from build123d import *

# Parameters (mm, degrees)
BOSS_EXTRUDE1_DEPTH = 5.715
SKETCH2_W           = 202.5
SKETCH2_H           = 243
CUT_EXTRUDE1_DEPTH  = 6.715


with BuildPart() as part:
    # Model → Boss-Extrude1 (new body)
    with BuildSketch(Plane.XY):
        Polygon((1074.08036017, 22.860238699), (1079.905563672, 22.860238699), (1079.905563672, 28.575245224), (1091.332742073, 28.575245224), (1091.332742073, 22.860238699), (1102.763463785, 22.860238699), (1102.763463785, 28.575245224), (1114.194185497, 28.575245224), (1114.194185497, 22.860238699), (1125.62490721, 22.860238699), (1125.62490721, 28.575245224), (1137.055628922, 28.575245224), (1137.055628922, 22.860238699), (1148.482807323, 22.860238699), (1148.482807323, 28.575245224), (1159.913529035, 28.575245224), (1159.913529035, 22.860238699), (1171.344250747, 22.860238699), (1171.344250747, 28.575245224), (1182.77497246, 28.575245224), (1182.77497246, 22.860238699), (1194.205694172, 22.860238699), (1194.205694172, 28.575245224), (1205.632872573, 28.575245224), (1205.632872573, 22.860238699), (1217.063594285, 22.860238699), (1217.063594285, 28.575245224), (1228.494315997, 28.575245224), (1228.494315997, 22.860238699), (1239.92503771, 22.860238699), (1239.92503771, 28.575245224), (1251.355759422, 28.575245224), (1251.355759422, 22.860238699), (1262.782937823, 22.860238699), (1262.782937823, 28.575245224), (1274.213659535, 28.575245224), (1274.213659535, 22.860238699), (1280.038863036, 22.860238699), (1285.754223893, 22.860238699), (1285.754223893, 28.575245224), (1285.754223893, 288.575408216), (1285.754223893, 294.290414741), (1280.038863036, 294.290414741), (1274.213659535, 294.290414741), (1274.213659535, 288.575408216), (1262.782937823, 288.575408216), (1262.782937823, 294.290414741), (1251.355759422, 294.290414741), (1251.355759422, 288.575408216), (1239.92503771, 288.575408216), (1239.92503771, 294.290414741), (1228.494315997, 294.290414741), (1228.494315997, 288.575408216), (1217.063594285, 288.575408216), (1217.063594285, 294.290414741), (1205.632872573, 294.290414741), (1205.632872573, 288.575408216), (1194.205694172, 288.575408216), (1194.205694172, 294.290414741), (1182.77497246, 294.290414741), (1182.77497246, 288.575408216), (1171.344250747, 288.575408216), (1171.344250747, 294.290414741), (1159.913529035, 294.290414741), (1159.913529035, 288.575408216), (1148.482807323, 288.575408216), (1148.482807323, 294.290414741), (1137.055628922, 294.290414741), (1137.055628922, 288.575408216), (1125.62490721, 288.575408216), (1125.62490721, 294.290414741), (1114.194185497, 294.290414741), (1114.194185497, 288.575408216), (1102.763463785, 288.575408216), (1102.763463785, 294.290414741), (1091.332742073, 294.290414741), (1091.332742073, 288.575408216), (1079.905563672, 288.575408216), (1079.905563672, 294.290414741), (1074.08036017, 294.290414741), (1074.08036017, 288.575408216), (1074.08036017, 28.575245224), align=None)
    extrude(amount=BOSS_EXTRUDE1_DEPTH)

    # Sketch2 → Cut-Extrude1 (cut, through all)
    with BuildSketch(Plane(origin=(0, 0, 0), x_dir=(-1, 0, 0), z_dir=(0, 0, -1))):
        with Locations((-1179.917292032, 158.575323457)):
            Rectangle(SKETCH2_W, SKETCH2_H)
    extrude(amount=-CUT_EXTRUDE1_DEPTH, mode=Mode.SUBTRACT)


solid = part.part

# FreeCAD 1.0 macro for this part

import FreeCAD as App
import Part
import Sketcher
from FreeCAD import Vector

doc = App.newDocument("Part")
body = doc.addObject("PartDesign::Body", "Body")

sketch1 = body.newObject("Sketcher::SketchObject", "Sketch")
sketch1.AttachmentSupport = (doc.getObject("XY_Plane"), [""])
sketch1.MapMode = "FlatFace"
sketch1.addGeometry(Part.LineSegment(Vector(1074.08036, 22.860239, 0), Vector(1079.905564, 22.860239, 0)), False)
sketch1.addGeometry(Part.LineSegment(Vector(1079.905564, 22.860239, 0), Vector(1079.905564, 28.575245, 0)), False)
sketch1.addGeometry(Part.LineSegment(Vector(1079.905564, 28.575245, 0), Vector(1091.332742, 28.575245, 0)), False)
sketch1.addGeometry(Part.LineSegment(Vector(1091.332742, 28.575245, 0), Vector(1091.332742, 22.860239, 0)), False)
sketch1.addGeometry(Part.LineSegment(Vector(1091.332742, 22.860239, 0), Vector(1102.763464, 22.860239, 0)), False)
sketch1.addGeometry(Part.LineSegment(Vector(1102.763464, 22.860239, 0), Vector(1102.763464, 28.575245, 0)), False)
sketch1.addGeometry(Part.LineSegment(Vector(1102.763464, 28.575245, 0), Vector(1114.194185, 28.575245, 0)), False)
sketch1.addGeometry(Part.LineSegment(Vector(1114.194185, 28.575245, 0), Vector(1114.194185, 22.860239, 0)), False)
sketch1.addGeometry(Part.LineSegment(Vector(1114.194185, 22.860239, 0), Vector(1125.624907, 22.860239, 0)), False)
sketch1.addGeometry(Part.LineSegment(Vector(1125.624907, 22.860239, 0), Vector(1125.624907, 28.575245, 0)), False)
sketch1.addGeometry(Part.LineSegment(Vector(1125.624907, 28.575245, 0), Vector(1137.055629, 28.575245, 0)), False)
sketch1.addGeometry(Part.LineSegment(Vector(1137.055629, 28.575245, 0), Vector(1137.055629, 22.860239, 0)), False)
sketch1.addGeometry(Part.LineSegment(Vector(1137.055629, 22.860239, 0), Vector(1148.482807, 22.860239, 0)), False)
sketch1.addGeometry(Part.LineSegment(Vector(1148.482807, 22.860239, 0), Vector(1148.482807, 28.575245, 0)), False)
sketch1.addGeometry(Part.LineSegment(Vector(1148.482807, 28.575245, 0), Vector(1159.913529, 28.575245, 0)), False)
sketch1.addGeometry(Part.LineSegment(Vector(1159.913529, 28.575245, 0), Vector(1159.913529, 22.860239, 0)), False)
sketch1.addGeometry(Part.LineSegment(Vector(1159.913529, 22.860239, 0), Vector(1171.344251, 22.860239, 0)), False)
sketch1.addGeometry(Part.LineSegment(Vector(1171.344251, 22.860239, 0), Vector(1171.344251, 28.575245, 0)), False)
sketch1.addGeometry(Part.LineSegment(Vector(1171.344251, 28.575245, 0), Vector(1182.774972, 28.575245, 0)), False)
sketch1.addGeometry(Part.LineSegment(Vector(1182.774972, 28.575245, 0), Vector(1182.774972, 22.860239, 0)), False)
sketch1.addGeometry(Part.LineSegment(Vector(1182.774972, 22.860239, 0), Vector(1194.205694, 22.860239, 0)), False)
sketch1.addGeometry(Part.LineSegment(Vector(1194.205694, 22.860239, 0), Vector(1194.205694, 28.575245, 0)), False)
sketch1.addGeometry(Part.LineSegment(Vector(1194.205694, 28.575245, 0), Vector(1205.632873, 28.575245, 0)), False)
sketch1.addGeometry(Part.LineSegment(Vector(1205.632873, 28.575245, 0), Vector(1205.632873, 22.860239, 0)), False)
sketch1.addGeometry(Part.LineSegment(Vector(1205.632873, 22.860239, 0), Vector(1217.063594, 22.860239, 0)), False)
sketch1.addGeometry(Part.LineSegment(Vector(1217.063594, 22.860239, 0), Vector(1217.063594, 28.575245, 0)), False)
sketch1.addGeometry(Part.LineSegment(Vector(1217.063594, 28.575245, 0), Vector(1228.494316, 28.575245, 0)), False)
sketch1.addGeometry(Part.LineSegment(Vector(1228.494316, 28.575245, 0), Vector(1228.494316, 22.860239, 0)), False)
sketch1.addGeometry(Part.LineSegment(Vector(1228.494316, 22.860239, 0), Vector(1239.925038, 22.860239, 0)), False)
sketch1.addGeometry(Part.LineSegment(Vector(1239.925038, 22.860239, 0), Vector(1239.925038, 28.575245, 0)), False)
sketch1.addGeometry(Part.LineSegment(Vector(1239.925038, 28.575245, 0), Vector(1251.355759, 28.575245, 0)), False)
sketch1.addGeometry(Part.LineSegment(Vector(1251.355759, 28.575245, 0), Vector(1251.355759, 22.860239, 0)), False)
sketch1.addGeometry(Part.LineSegment(Vector(1251.355759, 22.860239, 0), Vector(1262.782938, 22.860239, 0)), False)
sketch1.addGeometry(Part.LineSegment(Vector(1262.782938, 22.860239, 0), Vector(1262.782938, 28.575245, 0)), False)
sketch1.addGeometry(Part.LineSegment(Vector(1262.782938, 28.575245, 0), Vector(1274.21366, 28.575245, 0)), False)
sketch1.addGeometry(Part.LineSegment(Vector(1274.21366, 28.575245, 0), Vector(1274.21366, 22.860239, 0)), False)
sketch1.addGeometry(Part.LineSegment(Vector(1274.21366, 22.860239, 0), Vector(1285.754224, 22.860239, 0)), False)
sketch1.addGeometry(Part.LineSegment(Vector(1285.754224, 22.860239, 0), Vector(1285.754224, 294.290415, 0)), False)
sketch1.addGeometry(Part.LineSegment(Vector(1285.754224, 294.290415, 0), Vector(1274.21366, 294.290415, 0)), False)
sketch1.addGeometry(Part.LineSegment(Vector(1274.21366, 294.290415, 0), Vector(1274.21366, 288.575408, 0)), False)
sketch1.addGeometry(Part.LineSegment(Vector(1274.21366, 288.575408, 0), Vector(1262.782938, 288.575408, 0)), False)
sketch1.addGeometry(Part.LineSegment(Vector(1262.782938, 288.575408, 0), Vector(1262.782938, 294.290415, 0)), False)
sketch1.addGeometry(Part.LineSegment(Vector(1262.782938, 294.290415, 0), Vector(1251.355759, 294.290415, 0)), False)
sketch1.addGeometry(Part.LineSegment(Vector(1251.355759, 294.290415, 0), Vector(1251.355759, 288.575408, 0)), False)
sketch1.addGeometry(Part.LineSegment(Vector(1251.355759, 288.575408, 0), Vector(1239.925038, 288.575408, 0)), False)
sketch1.addGeometry(Part.LineSegment(Vector(1239.925038, 288.575408, 0), Vector(1239.925038, 294.290415, 0)), False)
sketch1.addGeometry(Part.LineSegment(Vector(1239.925038, 294.290415, 0), Vector(1228.494316, 294.290415, 0)), False)
sketch1.addGeometry(Part.LineSegment(Vector(1228.494316, 294.290415, 0), Vector(1228.494316, 288.575408, 0)), False)
sketch1.addGeometry(Part.LineSegment(Vector(1228.494316, 288.575408, 0), Vector(1217.063594, 288.575408, 0)), False)
sketch1.addGeometry(Part.LineSegment(Vector(1217.063594, 288.575408, 0), Vector(1217.063594, 294.290415, 0)), False)
sketch1.addGeometry(Part.LineSegment(Vector(1217.063594, 294.290415, 0), Vector(1205.632873, 294.290415, 0)), False)
sketch1.addGeometry(Part.LineSegment(Vector(1205.632873, 294.290415, 0), Vector(1205.632873, 288.575408, 0)), False)
sketch1.addGeometry(Part.LineSegment(Vector(1205.632873, 288.575408, 0), Vector(1194.205694, 288.575408, 0)), False)
sketch1.addGeometry(Part.LineSegment(Vector(1194.205694, 288.575408, 0), Vector(1194.205694, 294.290415, 0)), False)
sketch1.addGeometry(Part.LineSegment(Vector(1194.205694, 294.290415, 0), Vector(1182.774972, 294.290415, 0)), False)
sketch1.addGeometry(Part.LineSegment(Vector(1182.774972, 294.290415, 0), Vector(1182.774972, 288.575408, 0)), False)
sketch1.addGeometry(Part.LineSegment(Vector(1182.774972, 288.575408, 0), Vector(1171.344251, 288.575408, 0)), False)
sketch1.addGeometry(Part.LineSegment(Vector(1171.344251, 288.575408, 0), Vector(1171.344251, 294.290415, 0)), False)
sketch1.addGeometry(Part.LineSegment(Vector(1171.344251, 294.290415, 0), Vector(1159.913529, 294.290415, 0)), False)
sketch1.addGeometry(Part.LineSegment(Vector(1159.913529, 294.290415, 0), Vector(1159.913529, 288.575408, 0)), False)
sketch1.addGeometry(Part.LineSegment(Vector(1159.913529, 288.575408, 0), Vector(1148.482807, 288.575408, 0)), False)
sketch1.addGeometry(Part.LineSegment(Vector(1148.482807, 288.575408, 0), Vector(1148.482807, 294.290415, 0)), False)
sketch1.addGeometry(Part.LineSegment(Vector(1148.482807, 294.290415, 0), Vector(1137.055629, 294.290415, 0)), False)
sketch1.addGeometry(Part.LineSegment(Vector(1137.055629, 294.290415, 0), Vector(1137.055629, 288.575408, 0)), False)
sketch1.addGeometry(Part.LineSegment(Vector(1137.055629, 288.575408, 0), Vector(1125.624907, 288.575408, 0)), False)
sketch1.addGeometry(Part.LineSegment(Vector(1125.624907, 288.575408, 0), Vector(1125.624907, 294.290415, 0)), False)
sketch1.addGeometry(Part.LineSegment(Vector(1125.624907, 294.290415, 0), Vector(1114.194185, 294.290415, 0)), False)
sketch1.addGeometry(Part.LineSegment(Vector(1114.194185, 294.290415, 0), Vector(1114.194185, 288.575408, 0)), False)
sketch1.addGeometry(Part.LineSegment(Vector(1114.194185, 288.575408, 0), Vector(1102.763464, 288.575408, 0)), False)
sketch1.addGeometry(Part.LineSegment(Vector(1102.763464, 288.575408, 0), Vector(1102.763464, 294.290415, 0)), False)
sketch1.addGeometry(Part.LineSegment(Vector(1102.763464, 294.290415, 0), Vector(1091.332742, 294.290415, 0)), False)
sketch1.addGeometry(Part.LineSegment(Vector(1091.332742, 294.290415, 0), Vector(1091.332742, 288.575408, 0)), False)
sketch1.addGeometry(Part.LineSegment(Vector(1091.332742, 288.575408, 0), Vector(1079.905564, 288.575408, 0)), False)
sketch1.addGeometry(Part.LineSegment(Vector(1079.905564, 288.575408, 0), Vector(1079.905564, 294.290415, 0)), False)
sketch1.addGeometry(Part.LineSegment(Vector(1079.905564, 294.290415, 0), Vector(1074.08036, 294.290415, 0)), False)
sketch1.addGeometry(Part.LineSegment(Vector(1074.08036, 294.290415, 0), Vector(1074.08036, 22.860239, 0)), False)
sketch1.addConstraint(Sketcher.Constraint("Coincident", 0, 2, 1, 1))
sketch1.addConstraint(Sketcher.Constraint("Coincident", 1, 2, 2, 1))
sketch1.addConstraint(Sketcher.Constraint("Coincident", 2, 2, 3, 1))
sketch1.addConstraint(Sketcher.Constraint("Coincident", 3, 2, 4, 1))
sketch1.addConstraint(Sketcher.Constraint("Coincident", 4, 2, 5, 1))
sketch1.addConstraint(Sketcher.Constraint("Coincident", 5, 2, 6, 1))
sketch1.addConstraint(Sketcher.Constraint("Coincident", 6, 2, 7, 1))
sketch1.addConstraint(Sketcher.Constraint("Coincident", 7, 2, 8, 1))
sketch1.addConstraint(Sketcher.Constraint("Coincident", 8, 2, 9, 1))
sketch1.addConstraint(Sketcher.Constraint("Coincident", 9, 2, 10, 1))
sketch1.addConstraint(Sketcher.Constraint("Coincident", 10, 2, 11, 1))
sketch1.addConstraint(Sketcher.Constraint("Coincident", 11, 2, 12, 1))
sketch1.addConstraint(Sketcher.Constraint("Coincident", 12, 2, 13, 1))
sketch1.addConstraint(Sketcher.Constraint("Coincident", 13, 2, 14, 1))
sketch1.addConstraint(Sketcher.Constraint("Coincident", 14, 2, 15, 1))
sketch1.addConstraint(Sketcher.Constraint("Coincident", 15, 2, 16, 1))
sketch1.addConstraint(Sketcher.Constraint("Coincident", 16, 2, 17, 1))
sketch1.addConstraint(Sketcher.Constraint("Coincident", 17, 2, 18, 1))
sketch1.addConstraint(Sketcher.Constraint("Coincident", 18, 2, 19, 1))
sketch1.addConstraint(Sketcher.Constraint("Coincident", 19, 2, 20, 1))
sketch1.addConstraint(Sketcher.Constraint("Coincident", 20, 2, 21, 1))
sketch1.addConstraint(Sketcher.Constraint("Coincident", 21, 2, 22, 1))
sketch1.addConstraint(Sketcher.Constraint("Coincident", 22, 2, 23, 1))
sketch1.addConstraint(Sketcher.Constraint("Coincident", 23, 2, 24, 1))
sketch1.addConstraint(Sketcher.Constraint("Coincident", 24, 2, 25, 1))
sketch1.addConstraint(Sketcher.Constraint("Coincident", 25, 2, 26, 1))
sketch1.addConstraint(Sketcher.Constraint("Coincident", 26, 2, 27, 1))
sketch1.addConstraint(Sketcher.Constraint("Coincident", 27, 2, 28, 1))
sketch1.addConstraint(Sketcher.Constraint("Coincident", 28, 2, 29, 1))
sketch1.addConstraint(Sketcher.Constraint("Coincident", 29, 2, 30, 1))
sketch1.addConstraint(Sketcher.Constraint("Coincident", 30, 2, 31, 1))
sketch1.addConstraint(Sketcher.Constraint("Coincident", 31, 2, 32, 1))
sketch1.addConstraint(Sketcher.Constraint("Coincident", 32, 2, 33, 1))
sketch1.addConstraint(Sketcher.Constraint("Coincident", 33, 2, 34, 1))
sketch1.addConstraint(Sketcher.Constraint("Coincident", 34, 2, 35, 1))
sketch1.addConstraint(Sketcher.Constraint("Coincident", 35, 2, 36, 1))
sketch1.addConstraint(Sketcher.Constraint("Coincident", 36, 2, 37, 1))
sketch1.addConstraint(Sketcher.Constraint("Coincident", 37, 2, 38, 1))
sketch1.addConstraint(Sketcher.Constraint("Coincident", 38, 2, 39, 1))
sketch1.addConstraint(Sketcher.Constraint("Coincident", 39, 2, 40, 1))
sketch1.addConstraint(Sketcher.Constraint("Coincident", 40, 2, 41, 1))
sketch1.addConstraint(Sketcher.Constraint("Coincident", 41, 2, 42, 1))
sketch1.addConstraint(Sketcher.Constraint("Coincident", 42, 2, 43, 1))
sketch1.addConstraint(Sketcher.Constraint("Coincident", 43, 2, 44, 1))
sketch1.addConstraint(Sketcher.Constraint("Coincident", 44, 2, 45, 1))
sketch1.addConstraint(Sketcher.Constraint("Coincident", 45, 2, 46, 1))
sketch1.addConstraint(Sketcher.Constraint("Coincident", 46, 2, 47, 1))
sketch1.addConstraint(Sketcher.Constraint("Coincident", 47, 2, 48, 1))
sketch1.addConstraint(Sketcher.Constraint("Coincident", 48, 2, 49, 1))
sketch1.addConstraint(Sketcher.Constraint("Coincident", 49, 2, 50, 1))
sketch1.addConstraint(Sketcher.Constraint("Coincident", 50, 2, 51, 1))
sketch1.addConstraint(Sketcher.Constraint("Coincident", 51, 2, 52, 1))
sketch1.addConstraint(Sketcher.Constraint("Coincident", 52, 2, 53, 1))
sketch1.addConstraint(Sketcher.Constraint("Coincident", 53, 2, 54, 1))
sketch1.addConstraint(Sketcher.Constraint("Coincident", 54, 2, 55, 1))
sketch1.addConstraint(Sketcher.Constraint("Coincident", 55, 2, 56, 1))
sketch1.addConstraint(Sketcher.Constraint("Coincident", 56, 2, 57, 1))
sketch1.addConstraint(Sketcher.Constraint("Coincident", 57, 2, 58, 1))
sketch1.addConstraint(Sketcher.Constraint("Coincident", 58, 2, 59, 1))
sketch1.addConstraint(Sketcher.Constraint("Coincident", 59, 2, 60, 1))
sketch1.addConstraint(Sketcher.Constraint("Coincident", 60, 2, 61, 1))
sketch1.addConstraint(Sketcher.Constraint("Coincident", 61, 2, 62, 1))
sketch1.addConstraint(Sketcher.Constraint("Coincident", 62, 2, 63, 1))
sketch1.addConstraint(Sketcher.Constraint("Coincident", 63, 2, 64, 1))
sketch1.addConstraint(Sketcher.Constraint("Coincident", 64, 2, 65, 1))
sketch1.addConstraint(Sketcher.Constraint("Coincident", 65, 2, 66, 1))
sketch1.addConstraint(Sketcher.Constraint("Coincident", 66, 2, 67, 1))
sketch1.addConstraint(Sketcher.Constraint("Coincident", 67, 2, 68, 1))
sketch1.addConstraint(Sketcher.Constraint("Coincident", 68, 2, 69, 1))
sketch1.addConstraint(Sketcher.Constraint("Coincident", 69, 2, 70, 1))
sketch1.addConstraint(Sketcher.Constraint("Coincident", 70, 2, 71, 1))
sketch1.addConstraint(Sketcher.Constraint("Coincident", 71, 2, 72, 1))
sketch1.addConstraint(Sketcher.Constraint("Coincident", 72, 2, 73, 1))
sketch1.addConstraint(Sketcher.Constraint("Coincident", 73, 2, 74, 1))
sketch1.addConstraint(Sketcher.Constraint("Coincident", 74, 2, 75, 1))
sketch1.addConstraint(Sketcher.Constraint("Coincident", 75, 2, 0, 1))
sketch1.addConstraint(Sketcher.Constraint("Horizontal", 0))
sketch1.addConstraint(Sketcher.Constraint("Vertical", 1))
sketch1.addConstraint(Sketcher.Constraint("Horizontal", 2))
sketch1.addConstraint(Sketcher.Constraint("Vertical", 3))
sketch1.addConstraint(Sketcher.Constraint("Horizontal", 4))
sketch1.addConstraint(Sketcher.Constraint("Vertical", 5))
sketch1.addConstraint(Sketcher.Constraint("Horizontal", 6))
sketch1.addConstraint(Sketcher.Constraint("Vertical", 7))
sketch1.addConstraint(Sketcher.Constraint("Horizontal", 8))
sketch1.addConstraint(Sketcher.Constraint("Vertical", 9))
sketch1.addConstraint(Sketcher.Constraint("Horizontal", 10))
sketch1.addConstraint(Sketcher.Constraint("Vertical", 11))
sketch1.addConstraint(Sketcher.Constraint("Horizontal", 12))
sketch1.addConstraint(Sketcher.Constraint("Vertical", 13))
sketch1.addConstraint(Sketcher.Constraint("Horizontal", 14))
sketch1.addConstraint(Sketcher.Constraint("Vertical", 15))
sketch1.addConstraint(Sketcher.Constraint("Horizontal", 16))
sketch1.addConstraint(Sketcher.Constraint("Vertical", 17))
sketch1.addConstraint(Sketcher.Constraint("Horizontal", 18))
sketch1.addConstraint(Sketcher.Constraint("Vertical", 19))
sketch1.addConstraint(Sketcher.Constraint("Horizontal", 20))
sketch1.addConstraint(Sketcher.Constraint("Vertical", 21))
sketch1.addConstraint(Sketcher.Constraint("Horizontal", 22))
sketch1.addConstraint(Sketcher.Constraint("Vertical", 23))
sketch1.addConstraint(Sketcher.Constraint("Horizontal", 24))
sketch1.addConstraint(Sketcher.Constraint("Vertical", 25))
sketch1.addConstraint(Sketcher.Constraint("Horizontal", 26))
sketch1.addConstraint(Sketcher.Constraint("Vertical", 27))
sketch1.addConstraint(Sketcher.Constraint("Horizontal", 28))
sketch1.addConstraint(Sketcher.Constraint("Vertical", 29))
sketch1.addConstraint(Sketcher.Constraint("Horizontal", 30))
sketch1.addConstraint(Sketcher.Constraint("Vertical", 31))
sketch1.addConstraint(Sketcher.Constraint("Horizontal", 32))
sketch1.addConstraint(Sketcher.Constraint("Vertical", 33))
sketch1.addConstraint(Sketcher.Constraint("Horizontal", 34))
sketch1.addConstraint(Sketcher.Constraint("Vertical", 35))
sketch1.addConstraint(Sketcher.Constraint("Horizontal", 36))
sketch1.addConstraint(Sketcher.Constraint("Vertical", 37))
sketch1.addConstraint(Sketcher.Constraint("Horizontal", 38))
sketch1.addConstraint(Sketcher.Constraint("Vertical", 39))
sketch1.addConstraint(Sketcher.Constraint("Horizontal", 40))
sketch1.addConstraint(Sketcher.Constraint("Vertical", 41))
sketch1.addConstraint(Sketcher.Constraint("Horizontal", 42))
sketch1.addConstraint(Sketcher.Constraint("Vertical", 43))
sketch1.addConstraint(Sketcher.Constraint("Horizontal", 44))
sketch1.addConstraint(Sketcher.Constraint("Vertical", 45))
sketch1.addConstraint(Sketcher.Constraint("Horizontal", 46))
sketch1.addConstraint(Sketcher.Constraint("Vertical", 47))
sketch1.addConstraint(Sketcher.Constraint("Horizontal", 48))
sketch1.addConstraint(Sketcher.Constraint("Vertical", 49))
sketch1.addConstraint(Sketcher.Constraint("Horizontal", 50))
sketch1.addConstraint(Sketcher.Constraint("Vertical", 51))
sketch1.addConstraint(Sketcher.Constraint("Horizontal", 52))
sketch1.addConstraint(Sketcher.Constraint("Vertical", 53))
sketch1.addConstraint(Sketcher.Constraint("Horizontal", 54))
sketch1.addConstraint(Sketcher.Constraint("Vertical", 55))
sketch1.addConstraint(Sketcher.Constraint("Horizontal", 56))
sketch1.addConstraint(Sketcher.Constraint("Vertical", 57))
sketch1.addConstraint(Sketcher.Constraint("Horizontal", 58))
sketch1.addConstraint(Sketcher.Constraint("Vertical", 59))
sketch1.addConstraint(Sketcher.Constraint("Horizontal", 60))
sketch1.addConstraint(Sketcher.Constraint("Vertical", 61))
sketch1.addConstraint(Sketcher.Constraint("Horizontal", 62))
sketch1.addConstraint(Sketcher.Constraint("Vertical", 63))
sketch1.addConstraint(Sketcher.Constraint("Horizontal", 64))
sketch1.addConstraint(Sketcher.Constraint("Vertical", 65))
sketch1.addConstraint(Sketcher.Constraint("Horizontal", 66))
sketch1.addConstraint(Sketcher.Constraint("Vertical", 67))
sketch1.addConstraint(Sketcher.Constraint("Horizontal", 68))
sketch1.addConstraint(Sketcher.Constraint("Vertical", 69))
sketch1.addConstraint(Sketcher.Constraint("Horizontal", 70))
sketch1.addConstraint(Sketcher.Constraint("Vertical", 71))
sketch1.addConstraint(Sketcher.Constraint("Horizontal", 72))
sketch1.addConstraint(Sketcher.Constraint("Vertical", 73))
sketch1.addConstraint(Sketcher.Constraint("Horizontal", 74))
sketch1.addConstraint(Sketcher.Constraint("Vertical", 75))
sketch1.addConstraint(Sketcher.Constraint("Horizontal", 0, 2, 3, 2))
sketch1.addConstraint(Sketcher.Constraint("Horizontal", 2, 2, 5, 2))
sketch1.addConstraint(Sketcher.Constraint("Horizontal", 4, 2, 7, 2))
sketch1.addConstraint(Sketcher.Constraint("Horizontal", 6, 2, 9, 2))
sketch1.addConstraint(Sketcher.Constraint("Horizontal", 8, 2, 11, 2))
sketch1.addConstraint(Sketcher.Constraint("Horizontal", 10, 2, 13, 2))
sketch1.addConstraint(Sketcher.Constraint("Horizontal", 12, 2, 15, 2))
sketch1.addConstraint(Sketcher.Constraint("Horizontal", 14, 2, 17, 2))
sketch1.addConstraint(Sketcher.Constraint("Horizontal", 16, 2, 19, 2))
sketch1.addConstraint(Sketcher.Constraint("Horizontal", 18, 2, 21, 2))
sketch1.addConstraint(Sketcher.Constraint("Horizontal", 20, 2, 23, 2))
sketch1.addConstraint(Sketcher.Constraint("Horizontal", 22, 2, 25, 2))
sketch1.addConstraint(Sketcher.Constraint("Horizontal", 24, 2, 27, 2))
sketch1.addConstraint(Sketcher.Constraint("Horizontal", 26, 2, 29, 2))
sketch1.addConstraint(Sketcher.Constraint("Horizontal", 28, 2, 31, 2))
sketch1.addConstraint(Sketcher.Constraint("Horizontal", 30, 2, 33, 2))
sketch1.addConstraint(Sketcher.Constraint("Horizontal", 32, 2, 35, 2))
sketch1.addConstraint(Sketcher.Constraint("Horizontal", 38, 2, 41, 2))
sketch1.addConstraint(Sketcher.Constraint("Horizontal", 40, 2, 43, 2))
sketch1.addConstraint(Sketcher.Constraint("Horizontal", 42, 2, 45, 2))
sketch1.addConstraint(Sketcher.Constraint("Horizontal", 44, 2, 47, 2))
sketch1.addConstraint(Sketcher.Constraint("Horizontal", 46, 2, 49, 2))
sketch1.addConstraint(Sketcher.Constraint("Horizontal", 48, 2, 51, 2))
sketch1.addConstraint(Sketcher.Constraint("Horizontal", 50, 2, 53, 2))
sketch1.addConstraint(Sketcher.Constraint("Horizontal", 52, 2, 55, 2))
sketch1.addConstraint(Sketcher.Constraint("Horizontal", 54, 2, 57, 2))
sketch1.addConstraint(Sketcher.Constraint("Horizontal", 56, 2, 59, 2))
sketch1.addConstraint(Sketcher.Constraint("Horizontal", 58, 2, 61, 2))
sketch1.addConstraint(Sketcher.Constraint("Horizontal", 60, 2, 63, 2))
sketch1.addConstraint(Sketcher.Constraint("Horizontal", 62, 2, 65, 2))
sketch1.addConstraint(Sketcher.Constraint("Horizontal", 64, 2, 67, 2))
sketch1.addConstraint(Sketcher.Constraint("Horizontal", 66, 2, 69, 2))
sketch1.addConstraint(Sketcher.Constraint("Horizontal", 68, 2, 71, 2))
sketch1.addConstraint(Sketcher.Constraint("Horizontal", 70, 2, 73, 2))
sketch1.addConstraint(Sketcher.Constraint("Vertical", 35, 2, 38, 2))
sketch1.addConstraint(Sketcher.Constraint("Vertical", 33, 2, 40, 2))
sketch1.addConstraint(Sketcher.Constraint("Vertical", 31, 2, 42, 2))
sketch1.addConstraint(Sketcher.Constraint("Vertical", 29, 2, 44, 2))
sketch1.addConstraint(Sketcher.Constraint("Vertical", 27, 2, 46, 2))
sketch1.addConstraint(Sketcher.Constraint("Vertical", 25, 2, 48, 2))
sketch1.addConstraint(Sketcher.Constraint("Vertical", 23, 2, 50, 2))
sketch1.addConstraint(Sketcher.Constraint("Vertical", 21, 2, 52, 2))
sketch1.addConstraint(Sketcher.Constraint("Vertical", 19, 2, 54, 2))
sketch1.addConstraint(Sketcher.Constraint("Vertical", 17, 2, 56, 2))
sketch1.addConstraint(Sketcher.Constraint("Vertical", 15, 2, 58, 2))
sketch1.addConstraint(Sketcher.Constraint("Vertical", 13, 2, 60, 2))
sketch1.addConstraint(Sketcher.Constraint("Vertical", 11, 2, 62, 2))
sketch1.addConstraint(Sketcher.Constraint("Vertical", 9, 2, 64, 2))
sketch1.addConstraint(Sketcher.Constraint("Vertical", 7, 2, 66, 2))
sketch1.addConstraint(Sketcher.Constraint("Vertical", 5, 2, 68, 2))
sketch1.addConstraint(Sketcher.Constraint("Vertical", 3, 2, 70, 2))
sketch1.addConstraint(Sketcher.Constraint("Vertical", 1, 2, 72, 2))
sketch1.addConstraint(Sketcher.Constraint("Equal", 4, 6))
sketch1.addConstraint(Sketcher.Constraint("Equal", 6, 8))
sketch1.addConstraint(Sketcher.Constraint("Equal", 8, 10))
sketch1.addConstraint(Sketcher.Constraint("Equal", 2, 12))
sketch1.addConstraint(Sketcher.Constraint("Equal", 10, 14))
sketch1.addConstraint(Sketcher.Constraint("Equal", 14, 16))
sketch1.addConstraint(Sketcher.Constraint("Equal", 16, 18))
sketch1.addConstraint(Sketcher.Constraint("Equal", 18, 20))
sketch1.addConstraint(Sketcher.Constraint("Equal", 12, 22))
sketch1.addConstraint(Sketcher.Constraint("Equal", 20, 24))
sketch1.addConstraint(Sketcher.Constraint("Equal", 24, 26))
sketch1.addConstraint(Sketcher.Constraint("Equal", 26, 28))
sketch1.addConstraint(Sketcher.Constraint("Equal", 28, 30))
sketch1.addConstraint(Sketcher.Constraint("Equal", 22, 32))
sketch1.addConstraint(Sketcher.Constraint("Equal", 30, 34))
sketch1.addConstraint(Sketcher.Constraint("Equal", 35, 39))
sketch1.addConstraint(Sketcher.Constraint("DistanceX", 2, 1, 2, 2, 11.427178))
sketch1.addConstraint(Sketcher.Constraint("DistanceX", 4, 1, 4, 2, 11.430722))
sketch1.addConstraint(Sketcher.Constraint("DistanceX", 0, 1, 0, 2, 5.825204))
sketch1.addConstraint(Sketcher.Constraint("DistanceX", 36, 1, 36, 2, 11.540564))
sketch1.addConstraint(Sketcher.Constraint("DistanceY", 1, 1, 1, 2, 5.715007))
sketch1.addConstraint(Sketcher.Constraint("DistanceY", 37, 1, 37, 2, 271.430176))
sketch1.addConstraint(Sketcher.Constraint("DistanceY", -1, 1, 0, 2, 22.860239))
sketch1.addConstraint(Sketcher.Constraint("DistanceX", -1, 1, 10, 2, 1137.055629))
pad1 = body.newObject("PartDesign::Pad", "Pad")
pad1.Profile = sketch1
pad1.Length = 5.715

sketch2 = body.newObject("Sketcher::SketchObject", "Sketch001")
sketch2.AttachmentSupport = (doc.getObject("XY_Plane"), [""])
sketch2.MapMode = "FlatFace"
sketch2.addGeometry(Part.LineSegment(Vector(1281.167292, 280.075323, 0), Vector(1281.167292, 37.075323, 0)), False)
sketch2.addGeometry(Part.LineSegment(Vector(1281.167292, 37.075323, 0), Vector(1078.667292, 37.075323, 0)), False)
sketch2.addGeometry(Part.LineSegment(Vector(1078.667292, 37.075323, 0), Vector(1078.667292, 280.075323, 0)), False)
sketch2.addGeometry(Part.LineSegment(Vector(1078.667292, 280.075323, 0), Vector(1281.167292, 280.075323, 0)), False)
sketch2.addConstraint(Sketcher.Constraint("Coincident", 0, 2, 1, 1))
sketch2.addConstraint(Sketcher.Constraint("Coincident", 1, 2, 2, 1))
sketch2.addConstraint(Sketcher.Constraint("Coincident", 2, 2, 3, 1))
sketch2.addConstraint(Sketcher.Constraint("Coincident", 3, 2, 0, 1))
sketch2.addConstraint(Sketcher.Constraint("Vertical", 0))
sketch2.addConstraint(Sketcher.Constraint("Horizontal", 1))
sketch2.addConstraint(Sketcher.Constraint("Vertical", 2))
sketch2.addConstraint(Sketcher.Constraint("Horizontal", 3))
sketch2.addConstraint(Sketcher.Constraint("DistanceY", 0, 2, 0, 1, 243.0))
sketch2.addConstraint(Sketcher.Constraint("DistanceX", 1, 2, 1, 1, 202.5))
sketch2.addConstraint(Sketcher.Constraint("DistanceX", -1, 1, 0, 2, 1281.167292))
sketch2.addConstraint(Sketcher.Constraint("DistanceY", -1, 1, 0, 2, 37.075323))
pocket1 = body.newObject("PartDesign::Pocket", "Pocket")
pocket1.Profile = sketch2
pocket1.Type = "ThroughAll"
pocket1.Reversed = True

doc.recompute()
